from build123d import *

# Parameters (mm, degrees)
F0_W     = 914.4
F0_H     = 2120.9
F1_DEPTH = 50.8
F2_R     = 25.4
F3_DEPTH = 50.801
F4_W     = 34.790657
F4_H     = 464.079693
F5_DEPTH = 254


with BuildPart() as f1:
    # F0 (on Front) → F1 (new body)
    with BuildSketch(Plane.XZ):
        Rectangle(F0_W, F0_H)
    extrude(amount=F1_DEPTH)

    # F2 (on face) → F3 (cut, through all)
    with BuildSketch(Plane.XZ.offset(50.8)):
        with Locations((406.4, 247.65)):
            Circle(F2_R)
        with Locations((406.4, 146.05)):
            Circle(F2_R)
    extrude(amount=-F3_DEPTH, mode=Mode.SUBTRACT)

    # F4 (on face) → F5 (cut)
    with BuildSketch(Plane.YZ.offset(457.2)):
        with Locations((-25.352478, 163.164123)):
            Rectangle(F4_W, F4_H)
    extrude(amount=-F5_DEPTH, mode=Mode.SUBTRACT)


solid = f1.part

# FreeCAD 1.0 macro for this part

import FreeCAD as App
import Part
import Sketcher
from FreeCAD import Vector
Q = App.Units.Quantity


def add_polygon(sketch, points):
    """Adds a closed chain of lines whose ends are joined by coincident constraints."""
    first, n = sketch.GeometryCount, len(points)
    for a, b in zip(points, points[1:] + points[:1]):
        sketch.addGeometry(Part.LineSegment(App.Vector(*a, 0), App.Vector(*b, 0)), False)
    for i in range(n):
        sketch.addConstraint(Sketcher.Constraint("Coincident", first + i, 2, first + (i + 1) % n, 1))

doc = App.newDocument("Part")
body = doc.addObject("PartDesign::Body", "Body")

# Sketch on XZ plane
sketch1 = doc.addObject("Sketcher::SketchObject", "Sketch")
body.addObject(sketch1)
sketch1.AttachmentSupport = (doc.XZ_Plane, [""])
sketch1.MapMode = "FlatFace"
add_polygon(sketch1, [(-457, 1060), (-457, -1060), (457, -1060), (457, 1060)])  # lines 0-3
sketch1.addConstraint(Sketcher.Constraint("Vertical", 0))
sketch1.addConstraint(Sketcher.Constraint("Horizontal", 1))
sketch1.addConstraint(Sketcher.Constraint("Vertical", 2))
sketch1.addConstraint(Sketcher.Constraint("Horizontal", 3))
sketch1.addConstraint(Sketcher.Constraint("Symmetric", 0, 2, 2, 2, -1, 1))
sketch1.addConstraint(Sketcher.Constraint("DistanceX", 1, 1, 1, 2, Q("36 in")))
sketch1.addConstraint(Sketcher.Constraint("DistanceY", 0, 2, 0, 1, Q("83.5 in")))
pad1 = doc.addObject("PartDesign::Pad", "Pad")
body.addObject(pad1)
pad1.Profile = sketch1
pad1.Length = Q("2 in")

# Sketch on XZ plane
sketch2 = doc.addObject("Sketcher::SketchObject", "Sketch001")
body.addObject(sketch2)
sketch2.AttachmentSupport = (doc.XZ_Plane, [""])
sketch2.MapMode = "FlatFace"
sketch2.AttachmentOffset = App.Placement(Vector(0, 0, 2 * 25.4), App.Rotation())
sketch2.addGeometry(Part.Circle(Vector(406, 248, 0), Vector(0, 0, 1), 25), False)
sketch2.addGeometry(Part.Circle(Vector(406, 146, 0), Vector(0, 0, 1), 25), False)
sketch2.addConstraint(Sketcher.Constraint("Equal", 0, 1))
sketch2.addConstraint(Sketcher.Constraint("Vertical", 0, 3, 1, 3))
sketch2.addConstraint(Sketcher.Constraint("Diameter", 0, Q("2 in")))
sketch2.addConstraint(Sketcher.Constraint("DistanceX", -1, 1, 0, 3, Q("16 in")))
sketch2.addConstraint(Sketcher.Constraint("DistanceY", 1, 3, 0, 3, Q("4 in")))
sketch2.addConstraint(Sketcher.Constraint("DistanceY", -1, 1, 0, 3, Q("9.75 in")))
pocket1 = doc.addObject("PartDesign::Pocket", "Pocket")
body.addObject(pocket1)
pocket1.Profile = sketch2
pocket1.Type = "ThroughAll"

# Sketch on YZ plane
sketch3 = doc.addObject("Sketcher::SketchObject", "Sketch002")
body.addObject(sketch3)
sketch3.AttachmentSupport = (doc.YZ_Plane, [""])
sketch3.MapMode = "FlatFace"
sketch3.AttachmentOffset = App.Placement(Vector(0, 0, 18 * 25.4), App.Rotation())
add_polygon(sketch3, [(-43, 395), (-43, -69), (-8, -69), (-8, 395)])  # lines 0-3
sketch3.addConstraint(Sketcher.Constraint("Vertical", 0))
sketch3.addConstraint(Sketcher.Constraint("Horizontal", 1))
sketch3.addConstraint(Sketcher.Constraint("Vertical", 2))
sketch3.addConstraint(Sketcher.Constraint("Horizontal", 3))
sketch3.addConstraint(Sketcher.Constraint("DistanceX", 1, 1, 1, 2, Q("34.790657 mm")))
sketch3.addConstraint(Sketcher.Constraint("DistanceY", 0, 2, 0, 1, Q("464.079693 mm")))
sketch3.addConstraint(Sketcher.Constraint("DistanceX", 1, 2, -1, 1, Q("7.957149 mm")))
sketch3.addConstraint(Sketcher.Constraint("DistanceY", -1, 1, 2, 2, Q("395.20397 mm")))
pocket2 = doc.addObject("PartDesign::Pocket", "Pocket001")
body.addObject(pocket2)
pocket2.Profile = sketch3
pocket2.Length = Q("10 in")

doc.recompute()
